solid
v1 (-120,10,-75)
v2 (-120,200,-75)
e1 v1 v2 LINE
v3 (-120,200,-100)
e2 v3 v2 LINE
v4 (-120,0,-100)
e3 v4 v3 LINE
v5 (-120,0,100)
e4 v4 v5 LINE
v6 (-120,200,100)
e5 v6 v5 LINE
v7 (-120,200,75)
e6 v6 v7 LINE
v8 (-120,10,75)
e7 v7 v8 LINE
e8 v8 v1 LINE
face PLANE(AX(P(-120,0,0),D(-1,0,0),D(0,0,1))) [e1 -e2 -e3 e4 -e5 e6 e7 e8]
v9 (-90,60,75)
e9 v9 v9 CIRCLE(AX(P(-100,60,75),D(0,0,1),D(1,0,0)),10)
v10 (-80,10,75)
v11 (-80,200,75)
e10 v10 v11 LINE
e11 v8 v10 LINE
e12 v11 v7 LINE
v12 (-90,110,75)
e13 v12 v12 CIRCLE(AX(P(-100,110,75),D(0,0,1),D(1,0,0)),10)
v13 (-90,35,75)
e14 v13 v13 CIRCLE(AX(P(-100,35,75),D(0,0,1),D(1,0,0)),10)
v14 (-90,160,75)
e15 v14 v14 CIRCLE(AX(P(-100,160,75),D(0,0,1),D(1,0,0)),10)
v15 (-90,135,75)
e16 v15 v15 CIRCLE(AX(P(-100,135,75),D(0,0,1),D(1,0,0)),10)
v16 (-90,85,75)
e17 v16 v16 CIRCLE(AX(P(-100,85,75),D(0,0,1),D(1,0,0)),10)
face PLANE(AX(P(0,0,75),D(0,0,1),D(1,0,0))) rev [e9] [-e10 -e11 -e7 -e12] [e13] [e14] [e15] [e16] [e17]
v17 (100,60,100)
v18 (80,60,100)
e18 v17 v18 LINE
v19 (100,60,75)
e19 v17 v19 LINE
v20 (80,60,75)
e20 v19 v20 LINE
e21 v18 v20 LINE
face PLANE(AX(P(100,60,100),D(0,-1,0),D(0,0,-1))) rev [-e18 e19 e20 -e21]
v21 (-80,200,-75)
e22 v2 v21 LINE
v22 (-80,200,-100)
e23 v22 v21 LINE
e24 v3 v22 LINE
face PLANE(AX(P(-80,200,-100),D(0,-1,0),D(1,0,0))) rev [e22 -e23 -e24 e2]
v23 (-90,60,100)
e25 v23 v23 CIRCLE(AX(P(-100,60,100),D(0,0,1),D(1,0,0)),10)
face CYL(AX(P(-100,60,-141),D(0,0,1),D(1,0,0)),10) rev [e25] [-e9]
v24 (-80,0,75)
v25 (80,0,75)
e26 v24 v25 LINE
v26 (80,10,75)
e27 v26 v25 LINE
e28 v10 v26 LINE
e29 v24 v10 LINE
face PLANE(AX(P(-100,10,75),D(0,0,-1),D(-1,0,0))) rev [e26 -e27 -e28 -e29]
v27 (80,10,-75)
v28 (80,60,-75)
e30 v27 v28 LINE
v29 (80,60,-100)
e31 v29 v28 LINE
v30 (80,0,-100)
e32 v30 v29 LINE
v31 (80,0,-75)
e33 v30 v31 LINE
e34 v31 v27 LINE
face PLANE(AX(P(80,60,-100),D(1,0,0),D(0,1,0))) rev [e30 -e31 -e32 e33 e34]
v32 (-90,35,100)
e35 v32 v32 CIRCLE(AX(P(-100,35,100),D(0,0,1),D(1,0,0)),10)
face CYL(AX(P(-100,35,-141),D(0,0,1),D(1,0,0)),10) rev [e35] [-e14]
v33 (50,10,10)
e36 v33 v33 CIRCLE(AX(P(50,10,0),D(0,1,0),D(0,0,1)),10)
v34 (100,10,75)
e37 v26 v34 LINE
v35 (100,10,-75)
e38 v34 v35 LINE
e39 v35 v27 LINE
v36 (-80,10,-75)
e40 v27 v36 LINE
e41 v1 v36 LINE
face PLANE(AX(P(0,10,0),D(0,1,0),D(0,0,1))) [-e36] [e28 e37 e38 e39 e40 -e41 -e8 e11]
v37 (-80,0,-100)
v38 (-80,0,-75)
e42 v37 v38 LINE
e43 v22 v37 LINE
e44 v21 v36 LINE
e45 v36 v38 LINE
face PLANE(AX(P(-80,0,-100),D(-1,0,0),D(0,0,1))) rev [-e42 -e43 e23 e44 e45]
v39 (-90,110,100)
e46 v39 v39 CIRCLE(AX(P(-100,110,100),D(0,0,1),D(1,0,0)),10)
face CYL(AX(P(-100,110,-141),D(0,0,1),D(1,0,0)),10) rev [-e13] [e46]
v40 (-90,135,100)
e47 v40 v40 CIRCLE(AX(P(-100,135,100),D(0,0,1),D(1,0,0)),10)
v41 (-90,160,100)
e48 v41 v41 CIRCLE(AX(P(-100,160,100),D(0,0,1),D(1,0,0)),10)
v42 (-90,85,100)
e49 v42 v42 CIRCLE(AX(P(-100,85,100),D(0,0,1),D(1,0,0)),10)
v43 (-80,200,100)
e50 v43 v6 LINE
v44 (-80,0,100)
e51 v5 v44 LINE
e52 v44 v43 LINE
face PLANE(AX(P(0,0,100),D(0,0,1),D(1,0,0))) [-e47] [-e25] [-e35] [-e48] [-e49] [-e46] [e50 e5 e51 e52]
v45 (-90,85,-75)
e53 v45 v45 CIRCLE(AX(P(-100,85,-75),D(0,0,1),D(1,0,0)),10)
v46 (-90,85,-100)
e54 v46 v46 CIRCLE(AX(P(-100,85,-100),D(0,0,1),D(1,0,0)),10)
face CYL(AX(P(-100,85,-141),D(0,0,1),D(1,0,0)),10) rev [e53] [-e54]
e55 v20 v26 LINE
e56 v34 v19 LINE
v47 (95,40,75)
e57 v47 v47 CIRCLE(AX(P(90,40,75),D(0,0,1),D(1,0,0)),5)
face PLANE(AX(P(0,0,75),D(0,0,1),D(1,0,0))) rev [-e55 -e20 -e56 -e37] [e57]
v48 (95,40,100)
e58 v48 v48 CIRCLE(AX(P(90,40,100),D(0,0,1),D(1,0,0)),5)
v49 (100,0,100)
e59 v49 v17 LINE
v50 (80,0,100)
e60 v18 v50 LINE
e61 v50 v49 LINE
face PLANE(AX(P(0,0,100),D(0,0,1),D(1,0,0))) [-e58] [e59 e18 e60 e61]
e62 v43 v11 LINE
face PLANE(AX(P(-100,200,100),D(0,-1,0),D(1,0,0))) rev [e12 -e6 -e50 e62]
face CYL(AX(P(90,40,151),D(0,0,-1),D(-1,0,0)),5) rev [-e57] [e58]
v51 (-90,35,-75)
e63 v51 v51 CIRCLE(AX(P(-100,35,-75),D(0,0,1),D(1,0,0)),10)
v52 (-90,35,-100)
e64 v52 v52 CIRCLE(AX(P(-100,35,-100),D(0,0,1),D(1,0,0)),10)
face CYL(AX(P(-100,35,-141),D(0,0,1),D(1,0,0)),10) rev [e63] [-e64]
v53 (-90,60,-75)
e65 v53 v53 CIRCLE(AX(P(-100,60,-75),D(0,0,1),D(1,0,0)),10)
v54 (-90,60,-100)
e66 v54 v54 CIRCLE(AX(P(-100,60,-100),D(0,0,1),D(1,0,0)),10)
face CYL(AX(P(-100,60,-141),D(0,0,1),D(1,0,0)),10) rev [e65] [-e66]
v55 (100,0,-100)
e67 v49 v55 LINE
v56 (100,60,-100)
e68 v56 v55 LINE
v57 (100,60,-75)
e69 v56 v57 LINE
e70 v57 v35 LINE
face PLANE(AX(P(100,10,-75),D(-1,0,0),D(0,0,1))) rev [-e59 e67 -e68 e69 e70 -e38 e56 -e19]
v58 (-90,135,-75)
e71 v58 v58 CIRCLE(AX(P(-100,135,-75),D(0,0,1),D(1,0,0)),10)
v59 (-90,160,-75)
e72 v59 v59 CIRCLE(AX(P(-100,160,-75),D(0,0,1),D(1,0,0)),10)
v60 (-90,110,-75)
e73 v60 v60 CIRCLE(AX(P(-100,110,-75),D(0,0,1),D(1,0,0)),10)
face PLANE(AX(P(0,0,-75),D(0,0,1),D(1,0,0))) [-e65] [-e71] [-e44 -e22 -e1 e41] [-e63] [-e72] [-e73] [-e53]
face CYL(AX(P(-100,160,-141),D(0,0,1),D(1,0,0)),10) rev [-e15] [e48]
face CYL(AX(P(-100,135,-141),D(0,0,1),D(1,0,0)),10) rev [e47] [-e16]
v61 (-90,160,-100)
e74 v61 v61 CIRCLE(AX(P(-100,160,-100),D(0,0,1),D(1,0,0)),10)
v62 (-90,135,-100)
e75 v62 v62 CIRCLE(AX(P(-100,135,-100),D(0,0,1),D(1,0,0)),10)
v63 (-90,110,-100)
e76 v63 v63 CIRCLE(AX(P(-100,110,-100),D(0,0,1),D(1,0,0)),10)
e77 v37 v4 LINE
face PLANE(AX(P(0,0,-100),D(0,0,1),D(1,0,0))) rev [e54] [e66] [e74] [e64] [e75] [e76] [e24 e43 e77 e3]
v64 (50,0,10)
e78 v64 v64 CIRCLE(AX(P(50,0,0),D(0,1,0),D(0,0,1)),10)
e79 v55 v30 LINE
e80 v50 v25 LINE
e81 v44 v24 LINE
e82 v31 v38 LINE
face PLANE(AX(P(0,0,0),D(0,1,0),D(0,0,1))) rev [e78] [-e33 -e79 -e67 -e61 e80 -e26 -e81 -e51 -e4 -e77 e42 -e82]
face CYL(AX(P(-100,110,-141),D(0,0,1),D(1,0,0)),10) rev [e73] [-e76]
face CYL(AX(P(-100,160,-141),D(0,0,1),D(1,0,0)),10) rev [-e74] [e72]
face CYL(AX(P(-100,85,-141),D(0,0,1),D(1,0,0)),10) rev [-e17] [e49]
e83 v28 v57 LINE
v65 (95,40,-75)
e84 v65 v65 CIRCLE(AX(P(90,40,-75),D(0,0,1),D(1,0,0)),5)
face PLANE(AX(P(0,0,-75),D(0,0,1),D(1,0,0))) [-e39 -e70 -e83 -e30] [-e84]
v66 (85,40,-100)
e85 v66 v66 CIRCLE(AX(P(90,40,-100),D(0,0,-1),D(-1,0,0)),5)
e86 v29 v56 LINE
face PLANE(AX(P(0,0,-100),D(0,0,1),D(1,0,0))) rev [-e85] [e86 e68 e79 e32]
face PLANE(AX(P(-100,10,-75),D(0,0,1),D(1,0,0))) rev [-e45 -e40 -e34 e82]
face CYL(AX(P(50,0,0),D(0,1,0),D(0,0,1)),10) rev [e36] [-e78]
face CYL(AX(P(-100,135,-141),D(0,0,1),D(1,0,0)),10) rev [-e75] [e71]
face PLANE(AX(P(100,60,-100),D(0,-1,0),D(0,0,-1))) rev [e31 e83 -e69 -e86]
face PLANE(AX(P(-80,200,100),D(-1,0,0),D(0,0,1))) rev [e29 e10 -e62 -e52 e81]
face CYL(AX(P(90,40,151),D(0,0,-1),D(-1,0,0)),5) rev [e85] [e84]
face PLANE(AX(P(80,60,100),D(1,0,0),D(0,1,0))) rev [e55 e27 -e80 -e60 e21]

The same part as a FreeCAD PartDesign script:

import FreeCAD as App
import Part
import Sketcher
from FreeCAD import Vector
Q = App.Units.Quantity

doc = App.newDocument("Part")
body = doc.addObject("PartDesign::Body", "Body")

# Sketch on XZ plane
sketch1 = body.newObject("Sketcher::SketchObject", "Sketch")
sketch1.AttachmentSupport = (doc.getObject("XZ_Plane"), [""])
sketch1.MapMode = "FlatFace"
sketch1.addGeometry(Part.LineSegment(Vector(-100, -75, 0), Vector(-100, 75, 0)), False)
sketch1.addGeometry(Part.LineSegment(Vector(-100, 75, 0), Vector(100, 75, 0)), False)
sketch1.addGeometry(Part.LineSegment(Vector(100, 75, 0), Vector(100, -75, 0)), False)
sketch1.addGeometry(Part.LineSegment(Vector(100, -75, 0), Vector(-100, -75, 0)), False)
sketch1.addConstraint(Sketcher.Constraint("Coincident", 0, 2, 1, 1))
sketch1.addConstraint(Sketcher.Constraint("Coincident", 1, 2, 2, 1))
sketch1.addConstraint(Sketcher.Constraint("Coincident", 2, 2, 3, 1))
sketch1.addConstraint(Sketcher.Constraint("Coincident", 3, 2, 0, 1))
sketch1.addConstraint(Sketcher.Constraint("Vertical", 0))
sketch1.addConstraint(Sketcher.Constraint("Horizontal", 1))
sketch1.addConstraint(Sketcher.Constraint("Vertical", 2))
sketch1.addConstraint(Sketcher.Constraint("Horizontal", 3))
sketch1.addConstraint(Sketcher.Constraint("Symmetric", 0, 2, 2, 2, -1, 1))
sketch1.addConstraint(Sketcher.Constraint("DistanceX", 1, 1, 1, 2, Q("200 mm")))
sketch1.addConstraint(Sketcher.Constraint("DistanceY", 0, 1, 0, 2, Q("150 mm")))
pad1 = body.newObject("PartDesign::Pad", "Pad")
pad1.Profile = sketch1
pad1.Length = 10
pad1.Reversed = True

# Sketch on XZ plane
sketch2 = body.newObject("Sketcher::SketchObject", "Sketch001")
sketch2.AttachmentSupport = (doc.getObject("XZ_Plane"), [""])
sketch2.MapMode = "FlatFace"
sketch2.AttachmentOffset = App.Placement(Vector(0, 0, -10), App.Rotation())
sketch2.addGeometry(Part.Circle(Vector(50, 0, 0), Vector(0, 0, 1), 10), False)
sketch2.addConstraint(Sketcher.Constraint("PointOnObject", 0, 3, -1))
sketch2.addConstraint(Sketcher.Constraint("Diameter", 0, Q("20 mm")))
sketch2.addConstraint(Sketcher.Constraint("DistanceX", -1, 1, 0, 3, Q("50 mm")))
pocket1 = body.newObject("PartDesign::Pocket", "Pocket")
pocket1.Profile = sketch2
pocket1.Length = 10
pocket1.Reversed = True

# Sketch on YZ plane
sketch3 = body.newObject("Sketcher::SketchObject", "Sketch002")
sketch3.AttachmentSupport = (doc.getObject("YZ_Plane"), [""])
sketch3.MapMode = "FlatFace"
sketch3.AttachmentOffset = App.Placement(Vector(0, 0, -100), App.Rotation())
sketch3.addGeometry(Part.LineSegment(Vector(10, -75, 0), Vector(0, -75, 0)), False)
sketch3.addGeometry(Part.LineSegment(Vector(0, -75, 0), Vector(0, 75, 0)), False)
sketch3.addGeometry(Part.LineSegment(Vector(0, 75, 0), Vector(10, 75, 0)), False)
sketch3.addGeometry(Part.LineSegment(Vector(10, 75, 0), Vector(10, -75, 0)), False)
sketch3.addConstraint(Sketcher.Constraint("Coincident", 0, 2, 1, 1))
sketch3.addConstraint(Sketcher.Constraint("Coincident", 1, 2, 2, 1))
sketch3.addConstraint(Sketcher.Constraint("Coincident", 2, 2, 3, 1))
sketch3.addConstraint(Sketcher.Constraint("Coincident", 3, 2, 0, 1))
sketch3.addConstraint(Sketcher.Constraint("Horizontal", 0))
sketch3.addConstraint(Sketcher.Constraint("Vertical", 1))
sketch3.addConstraint(Sketcher.Constraint("Horizontal", 2))
sketch3.addConstraint(Sketcher.Constraint("Vertical", 3))
sketch3.addConstraint(Sketcher.Constraint("Symmetric", 0, 2, 1, 2, -1, 1))
sketch3.addConstraint(Sketcher.Constraint("DistanceX", 0, 2, 0, 1, Q("10 mm")))
sketch3.addConstraint(Sketcher.Constraint("DistanceY", 1, 1, 1, 2, Q("150 mm")))
pad2 = body.newObject("PartDesign::Pad", "Pad001")
pad2.Profile = sketch3
pad2.Length = 20
pad2.Reversed = True

# Sketch on XY plane
sketch4 = body.newObject("Sketcher::SketchObject", "Sketch003")
sketch4.AttachmentSupport = (doc.getObject("XY_Plane"), [""])
sketch4.MapMode = "FlatFace"
sketch4.AttachmentOffset = App.Placement(Vector(0, 0, 75), App.Rotation())
sketch4.addGeometry(Part.LineSegment(Vector(80, 60, 0), Vector(80, 0, 0)), False)
sketch4.addGeometry(Part.LineSegment(Vector(80, 0, 0), Vector(100, 0, 0)), False)
sketch4.addGeometry(Part.LineSegment(Vector(100, 0, 0), Vector(100, 60, 0)), False)
sketch4.addGeometry(Part.LineSegment(Vector(100, 60, 0), Vector(80, 60, 0)), False)
sketch4.addGeometry(Part.LineSegment(Vector(-120, 200, 0), Vector(-120, 0, 0)), False)
sketch4.addGeometry(Part.LineSegment(Vector(-120, 0, 0), Vector(-80, 0, 0)), False)
sketch4.addGeometry(Part.LineSegment(Vector(-80, 0, 0), Vector(-80, 200, 0)), False)
sketch4.addGeometry(Part.LineSegment(Vector(-80, 200, 0), Vector(-120, 200, 0)), False)
sketch4.addConstraint(Sketcher.Constraint("Coincident", 0, 2, 1, 1))
sketch4.addConstraint(Sketcher.Constraint("Coincident", 1, 2, 2, 1))
sketch4.addConstraint(Sketcher.Constraint("Coincident", 2, 2, 3, 1))
sketch4.addConstraint(Sketcher.Constraint("Coincident", 3, 2, 0, 1))
sketch4.addConstraint(Sketcher.Constraint("Coincident", 4, 2, 5, 1))
sketch4.addConstraint(Sketcher.Constraint("Coincident", 5, 2, 6, 1))
sketch4.addConstraint(Sketcher.Constraint("Coincident", 6, 2, 7, 1))
sketch4.addConstraint(Sketcher.Constraint("Coincident", 7, 2, 4, 1))
sketch4.addConstraint(Sketcher.Constraint("Vertical", 0))
sketch4.addConstraint(Sketcher.Constraint("Horizontal", 1))
sketch4.addConstraint(Sketcher.Constraint("Vertical", 2))
sketch4.addConstraint(Sketcher.Constraint("Horizontal", 3))
sketch4.addConstraint(Sketcher.Constraint("Vertical", 4))
sketch4.addConstraint(Sketcher.Constraint("Horizontal", 5))
sketch4.addConstraint(Sketcher.Constraint("Vertical", 6))
sketch4.addConstraint(Sketcher.Constraint("Horizontal", 7))
sketch4.addConstraint(Sketcher.Constraint("Symmetric", 0, 2, 5, 2, -1, 1))
sketch4.addConstraint(Sketcher.Constraint("PointOnObject", 0, 2, -1))
sketch4.addConstraint(Sketcher.Constraint("DistanceX", 1, 1, 1, 2, Q("20 mm")))
sketch4.addConstraint(Sketcher.Constraint("DistanceX", 5, 1, 5, 2, Q("40 mm")))
sketch4.addConstraint(Sketcher.Constraint("DistanceY", 0, 2, 0, 1, Q("60 mm")))
sketch4.addConstraint(Sketcher.Constraint("DistanceY", 4, 2, 4, 1, Q("200 mm")))
sketch4.addConstraint(Sketcher.Constraint("DistanceX", -1, 1, 0, 2, Q("80 mm")))
pad3 = body.newObject("PartDesign::Pad", "Pad002")
pad3.Profile = sketch4
pad3.Length = 25

# Sketch on XY plane
sketch5 = body.newObject("Sketcher::SketchObject", "Sketch004")
sketch5.AttachmentSupport = (doc.getObject("XY_Plane"), [""])
sketch5.MapMode = "FlatFace"
sketch5.AttachmentOffset = App.Placement(Vector(0, 0, -75), App.Rotation())
sketch5.addGeometry(Part.LineSegment(Vector(100, 60, 0), Vector(100, 0, 0)), False)
sketch5.addGeometry(Part.LineSegment(Vector(100, 0, 0), Vector(80, 0, 0)), False)
sketch5.addGeometry(Part.LineSegment(Vector(80, 0, 0), Vector(80, 60, 0)), False)
sketch5.addGeometry(Part.LineSegment(Vector(80, 60, 0), Vector(100, 60, 0)), False)
sketch5.addGeometry(Part.LineSegment(Vector(-80, 200, 0), Vector(-80, 0, 0)), False)
sketch5.addGeometry(Part.LineSegment(Vector(-80, 0, 0), Vector(-120, 0, 0)), False)
sketch5.addGeometry(Part.LineSegment(Vector(-120, 0, 0), Vector(-120, 200, 0)), False)
sketch5.addGeometry(Part.LineSegment(Vector(-120, 200, 0), Vector(-80, 200, 0)), False)
sketch5.addConstraint(Sketcher.Constraint("Coincident", 0, 2, 1, 1))
sketch5.addConstraint(Sketcher.Constraint("Coincident", 1, 2, 2, 1))
sketch5.addConstraint(Sketcher.Constraint("Coincident", 2, 2, 3, 1))
sketch5.addConstraint(Sketcher.Constraint("Coincident", 3, 2, 0, 1))
sketch5.addConstraint(Sketcher.Constraint("Coincident", 4, 2, 5, 1))
sketch5.addConstraint(Sketcher.Constraint("Coincident", 5, 2, 6, 1))
sketch5.addConstraint(Sketcher.Constraint("Coincident", 6, 2, 7, 1))
sketch5.addConstraint(Sketcher.Constraint("Coincident", 7, 2, 4, 1))
sketch5.addConstraint(Sketcher.Constraint("Vertical", 0))
sketch5.addConstraint(Sketcher.Constraint("Horizontal", 1))
sketch5.addConstraint(Sketcher.Constraint("Vertical", 2))
sketch5.addConstraint(Sketcher.Constraint("Horizontal", 3))
sketch5.addConstraint(Sketcher.Constraint("Vertical", 4))
sketch5.addConstraint(Sketcher.Constraint("Horizontal", 5))
sketch5.addConstraint(Sketcher.Constraint("Vertical", 6))
sketch5.addConstraint(Sketcher.Constraint("Horizontal", 7))
sketch5.addConstraint(Sketcher.Constraint("Symmetric", 1, 2, 4, 2, -1, 1))
sketch5.addConstraint(Sketcher.Constraint("PointOnObject", 0, 2, -1))
sketch5.addConstraint(Sketcher.Constraint("DistanceX", 1, 2, 1, 1, Q("20 mm")))
sketch5.addConstraint(Sketcher.Constraint("DistanceX", 5, 2, 5, 1, Q("40 mm")))
sketch5.addConstraint(Sketcher.Constraint("DistanceY", 0, 2, 0, 1, Q("60 mm")))
sketch5.addConstraint(Sketcher.Constraint("DistanceY", 4, 2, 4, 1, Q("200 mm")))
sketch5.addConstraint(Sketcher.Constraint("DistanceX", -1, 1, 0, 2, Q("100 mm")))
pad4 = body.newObject("PartDesign::Pad", "Pad003")
pad4.Profile = sketch5
pad4.Length = 25
pad4.Reversed = True

# Sketch on XY plane
sketch6 = body.newObject("Sketcher::SketchObject", "Sketch005")
sketch6.AttachmentSupport = (doc.getObject("XY_Plane"), [""])
sketch6.MapMode = "FlatFace"
sketch6.AttachmentOffset = App.Placement(Vector(0, 0, -100), App.Rotation())
sketch6.addGeometry(Part.Circle(Vector(90, 40, 0), Vector(0, 0, 1), 5), False)
sketch6.addConstraint(Sketcher.Constraint("Diameter", 0, Q("10 mm")))
sketch6.addConstraint(Sketcher.Constraint("DistanceX", -1, 1, 0, 3, Q("90 mm")))
sketch6.addConstraint(Sketcher.Constraint("DistanceY", -1, 1, 0, 3, Q("40 mm")))
pocket2 = body.newObject("PartDesign::Pocket", "Pocket001")
pocket2.Profile = sketch6
pocket2.Length = 251
pocket2.Reversed = True

# Sketch on XY plane
sketch7 = body.newObject("Sketcher::SketchObject", "Sketch006")
sketch7.AttachmentSupport = (doc.getObject("XY_Plane"), [""])
sketch7.MapMode = "FlatFace"
sketch7.AttachmentOffset = App.Placement(Vector(0, 0, 100), App.Rotation())
sketch7.addGeometry(Part.Circle(Vector(-100, 160, 0), Vector(0, 0, 1), 10), False)
sketch7.addGeometry(Part.Circle(Vector(-100, 135, 0), Vector(0, 0, 1), 10), False)
sketch7.addGeometry(Part.Circle(Vector(-100, 110, 0), Vector(0, 0, 1), 10), False)
sketch7.addGeometry(Part.Circle(Vector(-100, 85, 0), Vector(0, 0, 1), 10), False)
sketch7.addGeometry(Part.Circle(Vector(-100, 35, 0), Vector(0, 0, 1), 10), False)
sketch7.addGeometry(Part.Circle(Vector(-100, 60, 0), Vector(0, 0, 1), 10), False)
sketch7.addConstraint(Sketcher.Constraint("Equal", 0, 1))
sketch7.addConstraint(Sketcher.Constraint("Equal", 1, 2))
sketch7.addConstraint(Sketcher.Constraint("Equal", 2, 3))
sketch7.addConstraint(Sketcher.Constraint("Equal", 3, 4))
sketch7.addConstraint(Sketcher.Constraint("Equal", 4, 5))
sketch7.addConstraint(Sketcher.Constraint("Vertical", 0, 3, 1, 3))
sketch7.addConstraint(Sketcher.Constraint("Vertical", 1, 3, 2, 3))
sketch7.addConstraint(Sketcher.Constraint("Vertical", 2, 3, 3, 3))
sketch7.addConstraint(Sketcher.Constraint("Vertical", 3, 3, 4, 3))
sketch7.addConstraint(Sketcher.Constraint("Vertical", 4, 3, 5, 3))
sketch7.addConstraint(Sketcher.Constraint("Diameter", 0, Q("20 mm")))
sketch7.addConstraint(Sketcher.Constraint("DistanceX", 0, 3, -1, 1, Q("100 mm")))
sketch7.addConstraint(Sketcher.Constraint("DistanceY", -1, 1, 0, 3, Q("160 mm")))
sketch7.addConstraint(Sketcher.Constraint("DistanceY", -1, 1, 1, 3, Q("135 mm")))
sketch7.addConstraint(Sketcher.Constraint("DistanceY", -1, 1, 2, 3, Q("110 mm")))
sketch7.addConstraint(Sketcher.Constraint("DistanceY", -1, 1, 3, 3, Q("85 mm")))
sketch7.addConstraint(Sketcher.Constraint("DistanceY", -1, 1, 4, 3, Q("35 mm")))
sketch7.addConstraint(Sketcher.Constraint("DistanceY", -1, 1, 5, 3, Q("60 mm")))
pocket3 = body.newObject("PartDesign::Pocket", "Pocket002")
pocket3.Profile = sketch7
pocket3.Length = 241

doc.recompute()
